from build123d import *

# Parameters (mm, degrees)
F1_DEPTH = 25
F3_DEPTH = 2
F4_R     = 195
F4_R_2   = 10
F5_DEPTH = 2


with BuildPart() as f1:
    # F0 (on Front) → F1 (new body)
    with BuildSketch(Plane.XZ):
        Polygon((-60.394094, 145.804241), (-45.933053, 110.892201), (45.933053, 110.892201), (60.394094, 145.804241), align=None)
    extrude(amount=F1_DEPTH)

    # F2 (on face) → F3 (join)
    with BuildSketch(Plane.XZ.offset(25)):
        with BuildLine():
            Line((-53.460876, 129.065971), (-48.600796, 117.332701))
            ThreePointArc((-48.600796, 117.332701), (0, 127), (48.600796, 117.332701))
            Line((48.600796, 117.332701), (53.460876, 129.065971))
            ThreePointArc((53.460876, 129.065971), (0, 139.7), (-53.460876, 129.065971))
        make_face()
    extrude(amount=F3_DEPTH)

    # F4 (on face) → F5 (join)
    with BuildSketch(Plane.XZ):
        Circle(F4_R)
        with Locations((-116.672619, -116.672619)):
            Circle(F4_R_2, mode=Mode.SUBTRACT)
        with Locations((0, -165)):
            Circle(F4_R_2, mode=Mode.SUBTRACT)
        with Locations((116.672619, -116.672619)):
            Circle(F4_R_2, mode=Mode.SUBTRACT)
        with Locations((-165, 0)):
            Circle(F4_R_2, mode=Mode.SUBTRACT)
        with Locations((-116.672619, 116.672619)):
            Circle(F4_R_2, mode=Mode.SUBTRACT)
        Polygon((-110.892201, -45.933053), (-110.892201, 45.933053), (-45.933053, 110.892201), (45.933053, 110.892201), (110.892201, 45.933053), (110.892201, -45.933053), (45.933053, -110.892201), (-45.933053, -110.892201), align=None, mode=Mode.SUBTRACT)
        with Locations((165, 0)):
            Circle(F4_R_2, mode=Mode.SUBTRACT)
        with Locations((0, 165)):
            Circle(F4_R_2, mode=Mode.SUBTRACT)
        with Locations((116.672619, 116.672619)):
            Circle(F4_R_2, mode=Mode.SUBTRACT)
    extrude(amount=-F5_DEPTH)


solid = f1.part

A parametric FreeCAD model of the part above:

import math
import FreeCAD as App
import Part
import Sketcher

V = App.Vector
Q = App.Units.Quantity


def add_polygon(sketch, points):
    """Adds a closed chain of lines whose ends are joined by coincident constraints."""
    first, n = sketch.GeometryCount, len(points)
    for a, b in zip(points, points[1:] + points[:1]):
        sketch.addGeometry(Part.LineSegment(App.Vector(*a, 0), App.Vector(*b, 0)), False)
    for i in range(n):
        sketch.addConstraint(Sketcher.Constraint("Coincident", first + i, 2, first + (i + 1) % n, 1))

doc = App.newDocument("Part")
body = doc.addObject("PartDesign::Body", "Body")

sketch1 = body.newObject("Sketcher::SketchObject", "Sketch")
sketch1.AttachmentSupport = (doc.getObject("XZ_Plane"), [""])
sketch1.MapMode = "FlatFace"
add_polygon(sketch1, [(-60, 146), (-46, 111), (46, 111), (60, 146)])
sketch1.addConstraint([
    Sketcher.Constraint("Horizontal", 1),
    Sketcher.Constraint("Horizontal", 3),
    Sketcher.Constraint("Equal", 0, 2),
    Sketcher.Constraint("Angle", 0, Q("-67.499999 deg")),
    Sketcher.Constraint("DistanceX", 3, 2, 3, 1, Q("120.788188 mm")),
    Sketcher.Constraint("DistanceY", -1, 1, 0, 2, Q("110.892201 mm")),
    Sketcher.Constraint("Distance", 0, Q("37.78852 mm")),
    Sketcher.Constraint("DistanceX", 0, 2, -1, 1, Q("45.933053 mm")),
])
pad1 = body.newObject("PartDesign::Pad", "Pad")
pad1.Profile = sketch1
pad1.Length = 25

sketch2 = body.newObject("Sketcher::SketchObject", "Sketch001")
sketch2.AttachmentSupport = (doc.getObject("XZ_Plane"), [""])
sketch2.MapMode = "FlatFace"
sketch2.AttachmentOffset = App.Placement(V(0, 0, 25), App.Rotation())
sketch2.addGeometry([
    Part.LineSegment(V(-53, 129, 0), V(-49, 117, 0)),
    Part.ArcOfCircle(Part.Circle(V(0, 0, 0), V(0, 0, 1), 127), math.radians(68), math.radians(112)),
    Part.LineSegment(V(49, 117, 0), V(53, 129, 0)),
    Part.ArcOfCircle(Part.Circle(V(0, 0, 0), V(0, 0, 1), 140), math.radians(68), math.radians(112)),
], False)
sketch2.addConstraint([
    Sketcher.Constraint("Coincident", 0, 2, 1, 2),
    Sketcher.Constraint("Coincident", 1, 1, 2, 1),
    Sketcher.Constraint("Coincident", 2, 2, 3, 1),
    Sketcher.Constraint("Coincident", 3, 2, 0, 1),
    Sketcher.Constraint("Coincident", 1, 3, -1, 1),
    Sketcher.Constraint("Coincident", 3, 3, -1, 1),
    Sketcher.Constraint("Horizontal", 0, 2, 1, 1),
    Sketcher.Constraint("Horizontal", 2, 2, 3, 2),
    Sketcher.Constraint("Angle", 0, Q("-67.499998 deg")),
    Sketcher.Constraint("Distance", 0, Q("12.7 mm")),
    Sketcher.Constraint("Radius", 1, Q("127.000005 mm")),
    Sketcher.Constraint("DistanceY", -1, 1, 0, 2, Q("117.332701 mm")),
])
pad2 = body.newObject("PartDesign::Pad", "Pad001")
pad2.Profile = sketch2
pad2.Length = 2

sketch3 = body.newObject("Sketcher::SketchObject", "Sketch002")
sketch3.AttachmentSupport = (doc.getObject("XZ_Plane"), [""])
sketch3.MapMode = "FlatFace"
sketch3.addGeometry(Part.Circle(V(0, 0, 0), V(0, 0, 1), 195), False)
sketch3.addGeometry(Part.Circle(V(-117, -117, 0), V(0, 0, 1), 10), False)
sketch3.addGeometry(Part.Circle(V(0, -165, 0), V(0, 0, 1), 10), False)
sketch3.addGeometry(Part.Circle(V(117, -117, 0), V(0, 0, 1), 10), False)
sketch3.addGeometry(Part.Circle(V(-165, 0, 0), V(0, 0, 1), 10), False)
sketch3.addGeometry(Part.Circle(V(-117, 117, 0), V(0, 0, 1), 10), False)
add_polygon(sketch3, [(-46, -111), (-111, -46), (-111, 46), (-46, 111), (46, 111), (111, 46), (111, -46), (46, -111)])
sketch3.addGeometry(Part.Circle(V(165, 0, 0), V(0, 0, 1), 10), False)
sketch3.addGeometry(Part.Circle(V(0, 165, 0), V(0, 0, 1), 10), False)
sketch3.addGeometry(Part.Circle(V(117, 117, 0), V(0, 0, 1), 10), False)
sketch3.addConstraint([
    Sketcher.Constraint("Vertical", 7),
    Sketcher.Constraint("Horizontal", 9),
    Sketcher.Constraint("Vertical", 11),
    Sketcher.Constraint("Horizontal", 13),
    Sketcher.Constraint("Coincident", 0, 3, -1, 1),
    Sketcher.Constraint("Equal", 1, 2),
    Sketcher.Constraint("Equal", 2, 3),
    Sketcher.Constraint("Equal", 3, 4),
    Sketcher.Constraint("Equal", 4, 5),
    Sketcher.Constraint("Equal", 5, 14),
    Sketcher.Constraint("Equal", 14, 15),
    Sketcher.Constraint("Equal", 15, 16),
    Sketcher.Constraint("Symmetric", 3, 3, 5, 3, -1, 1),
    Sketcher.Constraint("Symmetric", 4, 3, 14, 3, -1, 1),
    Sketcher.Constraint("Symmetric", 2, 3, 15, 3, -1, 1),
    Sketcher.Constraint("Symmetric", 1, 3, 16, 3, -1, 1),
    Sketcher.Constraint("Symmetric", 6, 2, 10, 2, -1, 1),
    Sketcher.Constraint("Symmetric", 8, 2, 12, 2, -1, 1),
    Sketcher.Constraint("Symmetric", 1, 3, 3, 3, -2),
    Sketcher.Constraint("PointOnObject", 2, 3, -2),
    Sketcher.Constraint("PointOnObject", 4, 3, -1),
    Sketcher.Constraint("Perpendicular", 6, 8),
    Sketcher.Constraint("Perpendicular", 8, 10),
    Sketcher.Constraint("Perpendicular", 10, 12),
    Sketcher.Constraint("Horizontal", 7, 2, 10, 2),
    Sketcher.Constraint("Vertical", 9, 2, 12, 2),
    Sketcher.Constraint("Equal", 13, 7),
    Sketcher.Constraint("Diameter", 0, Q("390 mm")),
    Sketcher.Constraint("Diameter", 1, Q("20 mm")),
    Sketcher.Constraint("DistanceY", 2, 3, -1, 1, Q("165 mm")),
    Sketcher.Constraint("DistanceX", 4, 3, -1, 1, Q("165 mm")),
    Sketcher.Constraint("DistanceX", 6, 2, -1, 1, Q("110.892201 mm")),
    Sketcher.Constraint("Distance", 6, Q("91.866108 mm")),
    Sketcher.Constraint("DistanceX", 1, 3, -1, 1, Q("116.672619 mm")),
    Sketcher.Constraint("DistanceY", 1, 3, -1, 1, Q("116.672619 mm")),
])
pad3 = body.newObject("PartDesign::Pad", "Pad002")
pad3.Profile = sketch3
pad3.Length = 2
pad3.Reversed = True

doc.recompute()
